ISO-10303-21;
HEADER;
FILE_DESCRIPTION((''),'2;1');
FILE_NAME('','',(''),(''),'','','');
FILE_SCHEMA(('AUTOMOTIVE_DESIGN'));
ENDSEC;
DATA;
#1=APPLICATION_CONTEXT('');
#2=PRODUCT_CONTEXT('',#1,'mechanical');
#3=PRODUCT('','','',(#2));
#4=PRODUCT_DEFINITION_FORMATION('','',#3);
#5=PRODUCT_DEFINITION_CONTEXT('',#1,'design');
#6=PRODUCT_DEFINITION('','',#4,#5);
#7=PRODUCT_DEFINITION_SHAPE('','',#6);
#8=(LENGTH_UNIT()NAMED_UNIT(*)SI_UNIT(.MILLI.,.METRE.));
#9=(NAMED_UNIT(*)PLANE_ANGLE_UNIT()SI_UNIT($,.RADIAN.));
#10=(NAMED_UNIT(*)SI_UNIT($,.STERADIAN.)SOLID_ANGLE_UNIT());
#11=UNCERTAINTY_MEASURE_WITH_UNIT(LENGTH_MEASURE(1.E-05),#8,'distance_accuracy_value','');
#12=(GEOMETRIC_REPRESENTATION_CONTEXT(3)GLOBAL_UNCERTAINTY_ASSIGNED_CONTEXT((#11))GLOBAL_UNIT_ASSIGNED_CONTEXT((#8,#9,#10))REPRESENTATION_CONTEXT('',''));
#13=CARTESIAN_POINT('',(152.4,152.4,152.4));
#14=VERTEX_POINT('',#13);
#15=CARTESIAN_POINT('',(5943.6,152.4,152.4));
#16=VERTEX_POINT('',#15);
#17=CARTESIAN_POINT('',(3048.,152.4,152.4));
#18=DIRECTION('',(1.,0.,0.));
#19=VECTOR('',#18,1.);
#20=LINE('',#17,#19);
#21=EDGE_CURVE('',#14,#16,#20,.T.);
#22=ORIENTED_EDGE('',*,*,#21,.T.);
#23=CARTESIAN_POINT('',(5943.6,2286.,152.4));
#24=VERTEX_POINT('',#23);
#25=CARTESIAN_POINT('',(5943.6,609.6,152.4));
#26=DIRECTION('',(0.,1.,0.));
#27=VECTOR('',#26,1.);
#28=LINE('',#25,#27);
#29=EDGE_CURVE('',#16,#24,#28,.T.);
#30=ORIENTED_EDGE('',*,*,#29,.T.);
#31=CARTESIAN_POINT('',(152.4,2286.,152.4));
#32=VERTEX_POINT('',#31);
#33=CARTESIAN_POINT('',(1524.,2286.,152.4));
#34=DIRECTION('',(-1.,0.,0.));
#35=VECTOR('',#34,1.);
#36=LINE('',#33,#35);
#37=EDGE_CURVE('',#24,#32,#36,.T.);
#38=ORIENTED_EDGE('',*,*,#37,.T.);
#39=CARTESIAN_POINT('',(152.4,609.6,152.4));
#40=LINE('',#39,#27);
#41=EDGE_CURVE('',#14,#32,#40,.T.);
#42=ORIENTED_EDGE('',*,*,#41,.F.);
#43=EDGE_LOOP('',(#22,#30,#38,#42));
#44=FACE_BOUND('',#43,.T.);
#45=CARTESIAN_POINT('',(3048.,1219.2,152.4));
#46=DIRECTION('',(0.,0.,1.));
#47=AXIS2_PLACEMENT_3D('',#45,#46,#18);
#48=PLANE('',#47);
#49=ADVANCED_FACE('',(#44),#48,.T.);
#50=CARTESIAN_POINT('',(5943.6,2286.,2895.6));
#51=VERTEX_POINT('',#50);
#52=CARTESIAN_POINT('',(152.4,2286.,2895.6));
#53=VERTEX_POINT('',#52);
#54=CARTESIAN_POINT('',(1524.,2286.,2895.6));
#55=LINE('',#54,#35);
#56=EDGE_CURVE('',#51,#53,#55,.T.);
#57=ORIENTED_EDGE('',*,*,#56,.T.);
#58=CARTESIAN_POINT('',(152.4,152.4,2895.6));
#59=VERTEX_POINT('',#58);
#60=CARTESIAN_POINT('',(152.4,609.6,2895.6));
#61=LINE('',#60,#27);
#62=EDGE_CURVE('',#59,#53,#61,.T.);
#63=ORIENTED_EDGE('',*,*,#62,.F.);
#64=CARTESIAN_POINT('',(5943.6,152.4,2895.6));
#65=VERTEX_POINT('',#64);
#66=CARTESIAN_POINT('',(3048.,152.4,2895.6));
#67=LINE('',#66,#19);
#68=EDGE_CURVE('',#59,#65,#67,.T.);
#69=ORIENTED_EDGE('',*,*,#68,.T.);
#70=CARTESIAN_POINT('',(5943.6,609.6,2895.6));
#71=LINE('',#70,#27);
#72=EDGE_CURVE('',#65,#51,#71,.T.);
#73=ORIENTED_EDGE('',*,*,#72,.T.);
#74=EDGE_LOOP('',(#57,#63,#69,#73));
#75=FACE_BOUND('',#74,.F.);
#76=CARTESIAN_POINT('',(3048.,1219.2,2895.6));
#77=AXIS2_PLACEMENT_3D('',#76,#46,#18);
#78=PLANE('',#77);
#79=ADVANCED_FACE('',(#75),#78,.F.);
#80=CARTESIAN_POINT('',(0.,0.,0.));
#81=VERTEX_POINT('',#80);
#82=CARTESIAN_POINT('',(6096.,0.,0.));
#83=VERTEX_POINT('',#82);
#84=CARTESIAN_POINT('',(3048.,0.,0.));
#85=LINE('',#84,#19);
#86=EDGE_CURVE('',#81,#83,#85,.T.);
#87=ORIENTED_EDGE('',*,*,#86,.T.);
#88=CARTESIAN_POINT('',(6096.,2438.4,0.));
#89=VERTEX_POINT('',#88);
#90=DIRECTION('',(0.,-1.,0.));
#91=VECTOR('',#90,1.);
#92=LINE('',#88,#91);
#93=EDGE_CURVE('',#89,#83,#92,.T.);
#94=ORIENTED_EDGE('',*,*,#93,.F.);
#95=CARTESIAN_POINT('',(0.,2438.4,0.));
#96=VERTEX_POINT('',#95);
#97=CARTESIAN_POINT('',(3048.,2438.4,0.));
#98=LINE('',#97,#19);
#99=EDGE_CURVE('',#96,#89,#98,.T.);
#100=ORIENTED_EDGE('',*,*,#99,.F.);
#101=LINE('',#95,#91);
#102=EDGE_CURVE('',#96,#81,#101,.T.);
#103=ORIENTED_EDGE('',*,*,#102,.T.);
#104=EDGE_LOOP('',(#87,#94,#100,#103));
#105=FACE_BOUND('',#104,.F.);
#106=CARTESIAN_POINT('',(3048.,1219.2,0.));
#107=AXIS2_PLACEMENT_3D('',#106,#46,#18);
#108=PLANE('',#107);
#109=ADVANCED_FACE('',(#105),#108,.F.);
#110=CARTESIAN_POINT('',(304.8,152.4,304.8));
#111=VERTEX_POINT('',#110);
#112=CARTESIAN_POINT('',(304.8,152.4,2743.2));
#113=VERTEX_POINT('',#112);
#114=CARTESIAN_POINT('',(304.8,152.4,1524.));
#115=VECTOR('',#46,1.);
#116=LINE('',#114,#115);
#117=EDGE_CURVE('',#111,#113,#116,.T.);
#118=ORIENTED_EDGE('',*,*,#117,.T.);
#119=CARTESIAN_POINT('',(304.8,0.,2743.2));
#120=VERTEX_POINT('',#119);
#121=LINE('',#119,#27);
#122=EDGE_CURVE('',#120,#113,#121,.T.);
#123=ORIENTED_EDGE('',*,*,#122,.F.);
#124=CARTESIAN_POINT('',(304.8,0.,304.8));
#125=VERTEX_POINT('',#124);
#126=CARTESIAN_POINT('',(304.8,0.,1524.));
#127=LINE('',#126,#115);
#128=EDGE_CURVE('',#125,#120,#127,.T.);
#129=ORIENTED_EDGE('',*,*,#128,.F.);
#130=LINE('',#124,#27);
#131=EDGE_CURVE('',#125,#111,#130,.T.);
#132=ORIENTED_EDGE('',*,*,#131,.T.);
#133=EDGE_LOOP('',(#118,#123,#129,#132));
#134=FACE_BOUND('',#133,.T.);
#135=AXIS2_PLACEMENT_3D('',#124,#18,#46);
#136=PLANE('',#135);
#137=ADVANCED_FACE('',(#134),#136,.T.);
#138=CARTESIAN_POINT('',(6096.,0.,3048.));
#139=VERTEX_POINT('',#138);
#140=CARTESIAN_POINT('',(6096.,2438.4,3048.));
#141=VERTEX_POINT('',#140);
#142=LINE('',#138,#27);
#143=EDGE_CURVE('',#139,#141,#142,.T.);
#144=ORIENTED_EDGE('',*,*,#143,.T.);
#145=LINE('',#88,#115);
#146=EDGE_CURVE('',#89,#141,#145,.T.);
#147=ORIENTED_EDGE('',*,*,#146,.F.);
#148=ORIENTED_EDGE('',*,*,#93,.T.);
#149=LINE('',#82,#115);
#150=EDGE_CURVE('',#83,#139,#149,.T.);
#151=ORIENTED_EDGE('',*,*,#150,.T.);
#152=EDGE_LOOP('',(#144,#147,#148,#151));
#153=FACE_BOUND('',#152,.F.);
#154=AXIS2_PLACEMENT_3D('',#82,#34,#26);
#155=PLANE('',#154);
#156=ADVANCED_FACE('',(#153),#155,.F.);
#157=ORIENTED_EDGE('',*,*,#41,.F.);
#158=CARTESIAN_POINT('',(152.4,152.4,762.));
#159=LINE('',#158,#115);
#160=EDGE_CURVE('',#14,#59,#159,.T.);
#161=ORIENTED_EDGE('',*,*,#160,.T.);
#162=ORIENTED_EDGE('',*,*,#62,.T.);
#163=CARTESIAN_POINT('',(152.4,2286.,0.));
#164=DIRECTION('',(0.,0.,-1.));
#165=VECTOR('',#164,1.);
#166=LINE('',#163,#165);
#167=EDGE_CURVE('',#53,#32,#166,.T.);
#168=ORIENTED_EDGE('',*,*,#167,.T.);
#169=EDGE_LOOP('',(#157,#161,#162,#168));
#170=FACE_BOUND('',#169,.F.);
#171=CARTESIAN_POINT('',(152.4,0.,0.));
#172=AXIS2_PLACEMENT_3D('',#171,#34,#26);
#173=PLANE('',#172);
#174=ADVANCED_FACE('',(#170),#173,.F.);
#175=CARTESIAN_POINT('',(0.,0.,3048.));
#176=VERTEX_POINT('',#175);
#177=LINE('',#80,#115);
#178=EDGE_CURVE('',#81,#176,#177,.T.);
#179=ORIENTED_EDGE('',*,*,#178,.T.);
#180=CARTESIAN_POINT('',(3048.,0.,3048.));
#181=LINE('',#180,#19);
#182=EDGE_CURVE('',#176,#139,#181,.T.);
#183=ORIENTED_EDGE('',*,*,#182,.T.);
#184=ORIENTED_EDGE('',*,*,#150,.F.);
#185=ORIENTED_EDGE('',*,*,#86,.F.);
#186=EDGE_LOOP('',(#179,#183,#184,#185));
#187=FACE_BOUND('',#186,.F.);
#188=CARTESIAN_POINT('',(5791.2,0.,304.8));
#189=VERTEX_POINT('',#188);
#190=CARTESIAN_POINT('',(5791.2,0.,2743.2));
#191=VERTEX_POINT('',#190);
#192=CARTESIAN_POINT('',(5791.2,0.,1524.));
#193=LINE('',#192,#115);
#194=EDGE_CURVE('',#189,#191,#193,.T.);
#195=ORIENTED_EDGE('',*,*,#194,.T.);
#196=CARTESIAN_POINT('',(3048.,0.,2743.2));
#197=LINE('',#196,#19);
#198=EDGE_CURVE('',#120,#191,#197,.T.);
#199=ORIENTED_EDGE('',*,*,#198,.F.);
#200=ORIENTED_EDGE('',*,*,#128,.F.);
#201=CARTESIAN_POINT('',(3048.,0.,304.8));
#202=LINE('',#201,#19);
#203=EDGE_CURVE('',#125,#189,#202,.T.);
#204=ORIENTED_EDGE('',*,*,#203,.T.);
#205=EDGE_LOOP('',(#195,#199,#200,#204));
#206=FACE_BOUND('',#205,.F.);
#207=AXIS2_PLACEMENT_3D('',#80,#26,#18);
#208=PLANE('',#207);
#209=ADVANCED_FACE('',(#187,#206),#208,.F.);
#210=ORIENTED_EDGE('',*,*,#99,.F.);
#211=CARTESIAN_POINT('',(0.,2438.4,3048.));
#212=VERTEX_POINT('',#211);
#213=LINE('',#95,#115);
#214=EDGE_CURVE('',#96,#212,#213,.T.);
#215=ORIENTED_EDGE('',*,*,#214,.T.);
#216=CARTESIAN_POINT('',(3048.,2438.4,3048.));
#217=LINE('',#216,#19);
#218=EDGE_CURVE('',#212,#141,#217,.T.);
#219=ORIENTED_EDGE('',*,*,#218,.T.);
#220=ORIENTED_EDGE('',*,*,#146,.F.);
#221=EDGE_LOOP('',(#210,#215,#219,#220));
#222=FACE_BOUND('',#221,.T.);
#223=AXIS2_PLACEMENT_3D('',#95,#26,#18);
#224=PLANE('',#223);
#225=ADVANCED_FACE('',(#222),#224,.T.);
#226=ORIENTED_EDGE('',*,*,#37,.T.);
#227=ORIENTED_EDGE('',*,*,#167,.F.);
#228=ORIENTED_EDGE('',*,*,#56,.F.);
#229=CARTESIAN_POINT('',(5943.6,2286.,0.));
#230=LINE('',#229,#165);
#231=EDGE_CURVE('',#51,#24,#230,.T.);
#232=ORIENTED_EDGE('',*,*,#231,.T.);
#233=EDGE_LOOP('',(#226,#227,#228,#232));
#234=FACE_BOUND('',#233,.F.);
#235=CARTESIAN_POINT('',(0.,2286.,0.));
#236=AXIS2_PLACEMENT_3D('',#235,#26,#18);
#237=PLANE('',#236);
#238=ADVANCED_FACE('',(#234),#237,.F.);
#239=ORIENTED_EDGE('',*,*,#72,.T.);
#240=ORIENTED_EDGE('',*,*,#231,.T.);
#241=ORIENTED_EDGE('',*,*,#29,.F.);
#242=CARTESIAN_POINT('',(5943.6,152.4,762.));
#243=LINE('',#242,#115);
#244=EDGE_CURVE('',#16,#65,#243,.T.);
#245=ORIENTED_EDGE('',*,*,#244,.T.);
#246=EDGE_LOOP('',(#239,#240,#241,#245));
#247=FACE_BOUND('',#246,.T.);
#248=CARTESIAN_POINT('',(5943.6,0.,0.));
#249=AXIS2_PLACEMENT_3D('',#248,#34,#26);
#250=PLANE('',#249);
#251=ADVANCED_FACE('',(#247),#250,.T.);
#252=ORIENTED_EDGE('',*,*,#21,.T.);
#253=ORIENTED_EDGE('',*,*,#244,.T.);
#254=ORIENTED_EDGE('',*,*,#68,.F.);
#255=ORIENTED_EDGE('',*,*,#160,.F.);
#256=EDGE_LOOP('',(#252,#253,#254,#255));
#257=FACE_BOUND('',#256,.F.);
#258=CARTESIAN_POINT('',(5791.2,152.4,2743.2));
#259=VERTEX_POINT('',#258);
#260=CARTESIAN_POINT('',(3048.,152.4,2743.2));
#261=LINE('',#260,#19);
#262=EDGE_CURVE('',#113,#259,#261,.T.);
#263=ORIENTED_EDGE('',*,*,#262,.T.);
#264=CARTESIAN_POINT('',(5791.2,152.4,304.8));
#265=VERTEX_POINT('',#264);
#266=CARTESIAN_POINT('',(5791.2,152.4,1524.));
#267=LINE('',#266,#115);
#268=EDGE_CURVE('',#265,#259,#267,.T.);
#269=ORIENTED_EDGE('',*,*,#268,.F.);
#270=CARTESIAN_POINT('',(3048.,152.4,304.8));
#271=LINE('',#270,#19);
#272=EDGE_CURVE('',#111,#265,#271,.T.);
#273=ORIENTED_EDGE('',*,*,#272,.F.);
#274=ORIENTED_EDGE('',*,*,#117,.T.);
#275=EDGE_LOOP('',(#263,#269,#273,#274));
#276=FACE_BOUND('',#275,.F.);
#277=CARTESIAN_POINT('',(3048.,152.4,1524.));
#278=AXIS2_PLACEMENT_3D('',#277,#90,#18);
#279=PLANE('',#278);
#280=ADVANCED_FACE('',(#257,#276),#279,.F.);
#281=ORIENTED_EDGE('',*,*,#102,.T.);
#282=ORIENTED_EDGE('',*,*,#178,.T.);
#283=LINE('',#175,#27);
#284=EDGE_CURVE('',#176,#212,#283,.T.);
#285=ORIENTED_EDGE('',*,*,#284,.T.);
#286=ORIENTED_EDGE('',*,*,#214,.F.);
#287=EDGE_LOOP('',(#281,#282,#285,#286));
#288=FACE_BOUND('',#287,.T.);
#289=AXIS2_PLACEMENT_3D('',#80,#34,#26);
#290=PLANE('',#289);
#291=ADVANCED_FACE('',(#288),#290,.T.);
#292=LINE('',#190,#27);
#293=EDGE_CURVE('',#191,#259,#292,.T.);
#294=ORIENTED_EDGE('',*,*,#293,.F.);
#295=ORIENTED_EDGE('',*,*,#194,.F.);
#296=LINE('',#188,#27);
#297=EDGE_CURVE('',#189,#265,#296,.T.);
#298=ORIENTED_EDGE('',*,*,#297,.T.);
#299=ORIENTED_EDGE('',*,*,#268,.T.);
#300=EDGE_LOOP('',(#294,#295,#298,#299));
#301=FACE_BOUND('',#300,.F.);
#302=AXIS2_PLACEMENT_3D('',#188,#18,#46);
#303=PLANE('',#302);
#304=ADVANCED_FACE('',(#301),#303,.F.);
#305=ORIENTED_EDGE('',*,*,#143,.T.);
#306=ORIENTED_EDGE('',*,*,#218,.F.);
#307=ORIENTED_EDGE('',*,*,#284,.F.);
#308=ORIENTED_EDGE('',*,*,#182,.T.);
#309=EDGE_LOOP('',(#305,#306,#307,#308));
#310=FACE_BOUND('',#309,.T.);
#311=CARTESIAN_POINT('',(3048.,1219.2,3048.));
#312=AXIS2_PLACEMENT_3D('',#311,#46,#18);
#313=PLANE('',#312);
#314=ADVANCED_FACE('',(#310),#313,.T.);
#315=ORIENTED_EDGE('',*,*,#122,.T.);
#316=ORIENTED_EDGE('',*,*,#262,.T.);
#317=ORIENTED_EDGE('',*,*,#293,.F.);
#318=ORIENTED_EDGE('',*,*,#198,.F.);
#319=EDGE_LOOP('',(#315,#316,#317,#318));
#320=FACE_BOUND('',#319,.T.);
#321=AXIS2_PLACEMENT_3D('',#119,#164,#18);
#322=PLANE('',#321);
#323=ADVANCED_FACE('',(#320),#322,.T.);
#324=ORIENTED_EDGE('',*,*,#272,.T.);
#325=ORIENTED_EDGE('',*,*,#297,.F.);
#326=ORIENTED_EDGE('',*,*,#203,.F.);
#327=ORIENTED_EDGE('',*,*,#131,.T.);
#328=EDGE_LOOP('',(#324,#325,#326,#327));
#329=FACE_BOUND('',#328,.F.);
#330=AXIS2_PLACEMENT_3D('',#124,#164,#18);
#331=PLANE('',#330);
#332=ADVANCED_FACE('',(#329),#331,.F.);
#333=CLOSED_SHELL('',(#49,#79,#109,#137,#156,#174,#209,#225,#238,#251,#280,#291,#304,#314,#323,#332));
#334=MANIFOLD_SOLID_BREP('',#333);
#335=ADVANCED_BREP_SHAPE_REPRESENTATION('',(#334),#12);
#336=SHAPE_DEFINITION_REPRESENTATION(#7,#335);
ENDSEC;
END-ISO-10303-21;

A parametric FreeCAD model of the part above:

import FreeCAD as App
import Part
import Sketcher

V = App.Vector
Q = App.Units.Quantity


def faces_at(feature, points):
    """Names of the faces that lie closest to the given points."""
    faces = feature.Shape.Faces
    near = lambda p: min(range(len(faces)), key=lambda i: faces[i].distToShape(Part.Vertex(*p))[0])
    return sorted({f"Face{near(p) + 1}" for p in points})

doc = App.newDocument("Part")
body = doc.addObject("PartDesign::Body", "Body")

# Sketch on XY plane
sketch1 = body.newObject("Sketcher::SketchObject", "Sketch")
sketch1.AttachmentSupport = (doc.getObject("XY_Plane"), [""])
sketch1.MapMode = "FlatFace"
sketch1.addGeometry(Part.LineSegment(V(0, 2438, 0), V(0, 0, 0)), False)
sketch1.addGeometry(Part.LineSegment(V(0, 0, 0), V(6096, 0, 0)), False)
sketch1.addGeometry(Part.LineSegment(V(6096, 0, 0), V(6096, 2438, 0)), False)
sketch1.addGeometry(Part.LineSegment(V(6096, 2438, 0), V(0, 2438, 0)), False)
sketch1.addConstraint(Sketcher.Constraint("Coincident", 0, 2, 1, 1))
sketch1.addConstraint(Sketcher.Constraint("Coincident", 1, 2, 2, 1))
sketch1.addConstraint(Sketcher.Constraint("Coincident", 2, 2, 3, 1))
sketch1.addConstraint(Sketcher.Constraint("Coincident", 3, 2, 0, 1))
sketch1.addConstraint(Sketcher.Constraint("Vertical", 0))
sketch1.addConstraint(Sketcher.Constraint("Horizontal", 1))
sketch1.addConstraint(Sketcher.Constraint("Vertical", 2))
sketch1.addConstraint(Sketcher.Constraint("Horizontal", 3))
sketch1.addConstraint(Sketcher.Constraint("Coincident", 0, 2, -1, 1))
sketch1.addConstraint(Sketcher.Constraint("DistanceX", 1, 1, 1, 2, Q("240 in")))
sketch1.addConstraint(Sketcher.Constraint("DistanceY", 0, 2, 0, 1, Q("96 in")))
pad1 = body.newObject("PartDesign::Pad", "Pad")
pad1.Profile = sketch1
pad1.Length = Q("120 in")
doc.recompute()

thickness = body.newObject("PartDesign::Thickness", "Thickness")
thickness.Base = (pad1, faces_at(pad1, [(3048, 0, 1524)]))
thickness.Value = Q("6 in")
thickness.Reversed = True
thickness.Join = "Arc"

# Sketch on XZ plane
sketch2 = body.newObject("Sketcher::SketchObject", "Sketch001")
sketch2.AttachmentSupport = (doc.getObject("XZ_Plane"), [""])
sketch2.MapMode = "FlatFace"
sketch2.addGeometry(Part.LineSegment(V(0, 3048, 0), V(0, 0, 0)), False)
sketch2.addGeometry(Part.LineSegment(V(0, 0, 0), V(6096, 0, 0)), False)
sketch2.addGeometry(Part.LineSegment(V(6096, 0, 0), V(6096, 3048, 0)), False)
sketch2.addGeometry(Part.LineSegment(V(6096, 3048, 0), V(0, 3048, 0)), False)
sketch2.addGeometry(Part.LineSegment(V(5791, 305, 0), V(305, 305, 0)), False)
sketch2.addGeometry(Part.LineSegment(V(305, 305, 0), V(305, 2743, 0)), False)
sketch2.addGeometry(Part.LineSegment(V(305, 2743, 0), V(5791, 2743, 0)), False)
sketch2.addGeometry(Part.LineSegment(V(5791, 2743, 0), V(5791, 305, 0)), False)
sketch2.addConstraint(Sketcher.Constraint("Coincident", 0, 2, 1, 1))
sketch2.addConstraint(Sketcher.Constraint("Coincident", 1, 2, 2, 1))
sketch2.addConstraint(Sketcher.Constraint("Coincident", 2, 2, 3, 1))
sketch2.addConstraint(Sketcher.Constraint("Coincident", 3, 2, 0, 1))
sketch2.addConstraint(Sketcher.Constraint("Coincident", 4, 2, 5, 1))
sketch2.addConstraint(Sketcher.Constraint("Coincident", 5, 2, 6, 1))
sketch2.addConstraint(Sketcher.Constraint("Coincident", 6, 2, 7, 1))
sketch2.addConstraint(Sketcher.Constraint("Coincident", 7, 2, 4, 1))
sketch2.addConstraint(Sketcher.Constraint("Vertical", 0))
sketch2.addConstraint(Sketcher.Constraint("Horizontal", 1))
sketch2.addConstraint(Sketcher.Constraint("Vertical", 2))
sketch2.addConstraint(Sketcher.Constraint("Horizontal", 3))
sketch2.addConstraint(Sketcher.Constraint("Horizontal", 4))
sketch2.addConstraint(Sketcher.Constraint("Vertical", 5))
sketch2.addConstraint(Sketcher.Constraint("Horizontal", 6))
sketch2.addConstraint(Sketcher.Constraint("Vertical", 7))
sketch2.addConstraint(Sketcher.Constraint("Coincident", 0, 2, -1, 1))
sketch2.addConstraint(Sketcher.Constraint("DistanceX", 1, 1, 1, 2, Q("240 in")))
sketch2.addConstraint(Sketcher.Constraint("DistanceX", 4, 2, 4, 1, Q("216 in")))
sketch2.addConstraint(Sketcher.Constraint("DistanceY", 0, 2, 0, 1, Q("120 in")))
sketch2.addConstraint(Sketcher.Constraint("DistanceY", 5, 1, 5, 2, Q("96 in")))
sketch2.addConstraint(Sketcher.Constraint("DistanceX", -1, 1, 4, 2, Q("12 in")))
sketch2.addConstraint(Sketcher.Constraint("DistanceY", -1, 1, 4, 2, Q("12 in")))
pad2 = body.newObject("PartDesign::Pad", "Pad001")
pad2.Profile = sketch2
pad2.Length = Q("6 in")
pad2.Reversed = True

doc.recompute()
